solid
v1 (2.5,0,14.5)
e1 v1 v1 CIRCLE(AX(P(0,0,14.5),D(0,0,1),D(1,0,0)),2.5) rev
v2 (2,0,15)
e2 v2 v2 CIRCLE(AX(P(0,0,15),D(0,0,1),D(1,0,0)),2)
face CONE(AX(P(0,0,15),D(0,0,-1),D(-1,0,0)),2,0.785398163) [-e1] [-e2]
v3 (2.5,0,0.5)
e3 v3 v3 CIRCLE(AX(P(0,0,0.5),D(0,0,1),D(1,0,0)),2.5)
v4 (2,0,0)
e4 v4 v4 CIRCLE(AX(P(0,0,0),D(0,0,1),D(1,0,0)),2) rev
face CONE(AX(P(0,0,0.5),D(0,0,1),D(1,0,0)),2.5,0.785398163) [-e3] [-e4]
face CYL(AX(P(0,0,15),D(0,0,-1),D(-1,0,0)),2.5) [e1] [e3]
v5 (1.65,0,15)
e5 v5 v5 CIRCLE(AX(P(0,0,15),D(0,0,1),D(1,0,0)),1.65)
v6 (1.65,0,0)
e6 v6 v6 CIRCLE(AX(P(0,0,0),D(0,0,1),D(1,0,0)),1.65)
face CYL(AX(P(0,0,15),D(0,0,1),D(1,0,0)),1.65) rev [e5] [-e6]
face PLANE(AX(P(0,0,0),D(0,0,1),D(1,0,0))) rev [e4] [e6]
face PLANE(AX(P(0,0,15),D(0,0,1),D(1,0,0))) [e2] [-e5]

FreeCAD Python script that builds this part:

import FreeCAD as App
import Part
import Sketcher

V = App.Vector
Q = App.Units.Quantity


def edges_at(feature, points):
    """Names of the edges that pass closest to the given points."""
    edges = feature.Shape.Edges
    near = lambda p: min(range(len(edges)), key=lambda i: edges[i].distToShape(Part.Vertex(*p))[0])
    return sorted({f"Edge{near(p) + 1}" for p in points})

doc = App.newDocument("Part")
body = doc.addObject("PartDesign::Body", "Body")

# Sketch on XY plane
sketch1 = doc.addObject("Sketcher::SketchObject", "Sketch")
body.addObject(sketch1)
sketch1.AttachmentSupport = (doc.XY_Plane, [""])
sketch1.MapMode = "FlatFace"
sketch1.addGeometry(Part.Circle(V(0, 0, 0), V(0, 0, 1), 2.5), False)
sketch1.addConstraint([
    Sketcher.Constraint("Coincident", 0, 3, -1, 1),
    Sketcher.Constraint("Diameter", 0, Q("5 mm")),
])
pad1 = doc.addObject("PartDesign::Pad", "Pad")
body.addObject(pad1)
pad1.Profile = sketch1
pad1.Length = 15
doc.recompute()

chamfer = doc.addObject("PartDesign::Chamfer", "Chamfer")
body.addObject(chamfer)
chamfer.Base = (pad1, edges_at(pad1, [(-2.5, 0, 0), (-2.5, 0, 15)]))
chamfer.Size = 0.5

# Sketch on XY plane
sketch2 = doc.addObject("Sketcher::SketchObject", "Sketch001")
body.addObject(sketch2)
sketch2.AttachmentSupport = (doc.XY_Plane, [""])
sketch2.MapMode = "FlatFace"
sketch2.AttachmentOffset = App.Placement(V(0, 0, 15), App.Rotation())
sketch2.addGeometry(Part.Circle(V(0, 0, 0), V(0, 0, 1), 1.65), False)
sketch2.addConstraint([
    Sketcher.Constraint("Coincident", 0, 3, -1, 1),
    Sketcher.Constraint("Diameter", 0, Q("3.3 mm")),
])
doc.recompute()
hole = doc.addObject("PartDesign::Hole", "Hole")
body.addObject(hole)
hole.Profile = sketch2
hole.ThreadType = "None"
hole.Diameter = 3.3
hole.DepthType = "ThroughAll"

doc.recompute()
